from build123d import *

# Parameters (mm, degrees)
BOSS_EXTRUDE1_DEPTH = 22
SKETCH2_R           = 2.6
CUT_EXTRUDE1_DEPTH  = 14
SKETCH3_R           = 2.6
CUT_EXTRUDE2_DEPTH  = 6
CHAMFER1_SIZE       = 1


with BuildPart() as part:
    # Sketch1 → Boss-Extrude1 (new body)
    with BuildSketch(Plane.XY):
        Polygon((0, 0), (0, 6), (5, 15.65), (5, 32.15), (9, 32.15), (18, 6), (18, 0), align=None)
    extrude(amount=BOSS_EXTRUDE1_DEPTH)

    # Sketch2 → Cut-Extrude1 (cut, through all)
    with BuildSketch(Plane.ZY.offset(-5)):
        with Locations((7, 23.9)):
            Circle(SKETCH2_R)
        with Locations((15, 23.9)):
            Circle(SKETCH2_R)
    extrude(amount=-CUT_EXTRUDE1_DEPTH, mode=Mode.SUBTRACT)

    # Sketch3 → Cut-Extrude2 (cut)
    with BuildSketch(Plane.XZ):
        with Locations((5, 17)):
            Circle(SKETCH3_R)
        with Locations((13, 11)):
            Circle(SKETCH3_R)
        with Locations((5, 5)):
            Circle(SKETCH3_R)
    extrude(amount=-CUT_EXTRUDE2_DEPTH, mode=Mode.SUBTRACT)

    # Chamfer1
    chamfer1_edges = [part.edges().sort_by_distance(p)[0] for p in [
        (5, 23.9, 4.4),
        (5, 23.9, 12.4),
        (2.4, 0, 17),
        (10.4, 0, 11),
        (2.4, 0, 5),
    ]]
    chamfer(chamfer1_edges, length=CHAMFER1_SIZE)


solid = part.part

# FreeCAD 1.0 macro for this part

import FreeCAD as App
import Part
import Sketcher

V = App.Vector


def edges_at(feature, points):
    """Names of the edges that pass closest to the given points."""
    edges = feature.Shape.Edges
    near = lambda p: min(range(len(edges)), key=lambda i: edges[i].distToShape(Part.Vertex(*p))[0])
    return sorted({f"Edge{near(p) + 1}" for p in points})


def add_polygon(sketch, points):
    """Adds a closed chain of lines whose ends are joined by coincident constraints."""
    first, n = sketch.GeometryCount, len(points)
    for a, b in zip(points, points[1:] + points[:1]):
        sketch.addGeometry(Part.LineSegment(App.Vector(*a, 0), App.Vector(*b, 0)), False)
    for i in range(n):
        sketch.addConstraint(Sketcher.Constraint("Coincident", first + i, 2, first + (i + 1) % n, 1))

doc = App.newDocument("Part")
body = doc.addObject("PartDesign::Body", "Body")

# Sketch on XY plane
sketch1 = body.newObject("Sketcher::SketchObject", "Sketch")
sketch1.AttachmentSupport = (doc.getObject("XY_Plane"), [""])
sketch1.MapMode = "FlatFace"
add_polygon(sketch1, [(0, 6), (0, 0), (18, 0), (18, 6), (9, 32.1), (5, 32.1), (5, 15.7)])  # lines 0-6
sketch1.addConstraint(Sketcher.Constraint("Vertical", 0))
sketch1.addConstraint(Sketcher.Constraint("Horizontal", 1))
sketch1.addConstraint(Sketcher.Constraint("Vertical", 2))
sketch1.addConstraint(Sketcher.Constraint("Horizontal", 4))
sketch1.addConstraint(Sketcher.Constraint("Vertical", 5))
sketch1.addConstraint(Sketcher.Constraint("Coincident", 0, 2, -1, 1))
sketch1.addConstraint(Sketcher.Constraint("Horizontal", 2, 2, 6, 2))
sketch1.addConstraint(Sketcher.Constraint("DistanceX", 1, 1, 1, 2, 18.0))
sketch1.addConstraint(Sketcher.Constraint("DistanceX", 4, 2, 4, 1, 4.0))
sketch1.addConstraint(Sketcher.Constraint("DistanceY", 0, 2, 0, 1, 6.0))
sketch1.addConstraint(Sketcher.Constraint("DistanceY", 5, 2, 5, 1, 16.5))
sketch1.addConstraint(Sketcher.Constraint("DistanceX", -1, 1, 3, 2, 9.0))
sketch1.addConstraint(Sketcher.Constraint("DistanceY", -1, 1, 3, 2, 32.15))
pad1 = body.newObject("PartDesign::Pad", "Pad")
pad1.Profile = sketch1
pad1.Length = 22

# Sketch on YZ plane
sketch2 = body.newObject("Sketcher::SketchObject", "Sketch001")
sketch2.AttachmentSupport = (doc.getObject("YZ_Plane"), [""])
sketch2.MapMode = "FlatFace"
sketch2.AttachmentOffset = App.Placement(V(0, 0, 5), App.Rotation())
sketch2.addGeometry(Part.Circle(V(23.9, 7, 0), V(0, 0, 1), 2.6), False)
sketch2.addGeometry(Part.Circle(V(23.9, 15, 0), V(0, 0, 1), 2.6), False)
sketch2.addConstraint(Sketcher.Constraint("Equal", 0, 1))
sketch2.addConstraint(Sketcher.Constraint("Vertical", 0, 3, 1, 3))
sketch2.addConstraint(Sketcher.Constraint("Diameter", 0, 5.2))
sketch2.addConstraint(Sketcher.Constraint("DistanceY", -1, 1, 0, 3, 7.0))
sketch2.addConstraint(Sketcher.Constraint("DistanceY", -1, 1, 1, 3, 15.0))
sketch2.addConstraint(Sketcher.Constraint("DistanceX", -1, 1, 0, 3, 23.9))
pocket1 = body.newObject("PartDesign::Pocket", "Pocket")
pocket1.Profile = sketch2
pocket1.Type = "ThroughAll"
pocket1.Reversed = True

# Sketch on XZ plane
sketch3 = body.newObject("Sketcher::SketchObject", "Sketch002")
sketch3.AttachmentSupport = (doc.getObject("XZ_Plane"), [""])
sketch3.MapMode = "FlatFace"
sketch3.addGeometry(Part.Circle(V(5, 17, 0), V(0, 0, 1), 2.6), False)
sketch3.addGeometry(Part.Circle(V(13, 11, 0), V(0, 0, 1), 2.6), False)
sketch3.addGeometry(Part.Circle(V(5, 5, 0), V(0, 0, 1), 2.6), False)
sketch3.addConstraint(Sketcher.Constraint("Equal", 0, 1))
sketch3.addConstraint(Sketcher.Constraint("Equal", 1, 2))
sketch3.addConstraint(Sketcher.Constraint("Vertical", 0, 3, 2, 3))
sketch3.addConstraint(Sketcher.Constraint("Diameter", 0, 5.2))
sketch3.addConstraint(Sketcher.Constraint("DistanceX", -1, 1, 0, 3, 5.0))
sketch3.addConstraint(Sketcher.Constraint("DistanceY", -1, 1, 0, 3, 17.0))
sketch3.addConstraint(Sketcher.Constraint("DistanceX", -1, 1, 1, 3, 13.0))
sketch3.addConstraint(Sketcher.Constraint("DistanceY", -1, 1, 1, 3, 11.0))
sketch3.addConstraint(Sketcher.Constraint("DistanceY", -1, 1, 2, 3, 5.0))
pocket2 = body.newObject("PartDesign::Pocket", "Pocket001")
pocket2.Profile = sketch3
pocket2.Length = 6
doc.recompute()

chamfer = body.newObject("PartDesign::Chamfer", "Chamfer")
chamfer.Base = (pocket2, edges_at(pocket2, [
    (5, 23.9, 4.4),
    (5, 23.9, 12.4),
    (2.4, 0, 17),
    (10.4, 0, 11),
    (2.4, 0, 5),
]))
chamfer.Size = 1

doc.recompute()
